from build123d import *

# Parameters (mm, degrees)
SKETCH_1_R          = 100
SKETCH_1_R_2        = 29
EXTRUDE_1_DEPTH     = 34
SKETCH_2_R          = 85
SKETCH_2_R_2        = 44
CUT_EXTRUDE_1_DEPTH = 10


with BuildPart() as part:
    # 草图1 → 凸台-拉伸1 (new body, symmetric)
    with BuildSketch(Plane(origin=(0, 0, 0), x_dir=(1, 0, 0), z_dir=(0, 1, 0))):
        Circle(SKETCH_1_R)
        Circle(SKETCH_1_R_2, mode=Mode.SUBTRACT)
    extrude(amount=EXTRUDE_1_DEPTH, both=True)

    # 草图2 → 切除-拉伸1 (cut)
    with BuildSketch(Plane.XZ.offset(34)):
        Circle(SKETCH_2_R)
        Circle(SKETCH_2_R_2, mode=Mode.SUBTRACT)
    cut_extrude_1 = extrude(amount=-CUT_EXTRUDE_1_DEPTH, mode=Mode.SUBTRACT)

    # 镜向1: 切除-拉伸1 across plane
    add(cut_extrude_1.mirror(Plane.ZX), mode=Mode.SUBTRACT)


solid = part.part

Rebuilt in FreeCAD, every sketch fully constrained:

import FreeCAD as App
import Part
import Sketcher

doc = App.newDocument("Part")
params = doc.addObject("Spreadsheet::Sheet", "Params")
for row, (alias, value) in enumerate([
    ("sketch1_diameter", "200 mm"),
    ("sketch1_diameter2", "58 mm"),
    ("pad1_length", "68 mm"),
    ("sketch2_diameter", "170 mm"),
    ("sketch2_diameter2", "88 mm"),
    ("pocket1_length", "10 mm"),
], start=1):
    params.set(f"A{row}", alias)
    params.set(f"B{row}", "=" + value)
    params.setAlias(f"B{row}", alias)

body = doc.addObject("PartDesign::Body", "Body")

sketch1 = body.newObject("Sketcher::SketchObject", "Sketch")
sketch1.AttachmentSupport = (doc.getObject("XZ_Plane"), [""])
sketch1.MapMode = "FlatFace"
sketch1.addGeometry(Part.Circle(App.Vector(0, 0, 0), App.Vector(0, 0, 1), 100), False)
sketch1.addGeometry(Part.Circle(App.Vector(0, 0, 0), App.Vector(0, 0, 1), 29), False)
sketch1.addConstraint(Sketcher.Constraint("Coincident", 0, 3, -1, 1))
sketch1.addConstraint(Sketcher.Constraint("Coincident", 1, 3, -1, 1))
sketch1.addConstraint(Sketcher.Constraint("Diameter", 0, 200.0))
sketch1.addConstraint(Sketcher.Constraint("Diameter", 1, 58.0))
sketch1.setExpression("Constraints[2]", "Params.sketch1_diameter")
sketch1.setExpression("Constraints[3]", "Params.sketch1_diameter2")
pad1 = body.newObject("PartDesign::Pad", "Pad")
pad1.Profile = sketch1
pad1.setExpression("Length", "Params.pad1_length")
pad1.Midplane = True

sketch2 = body.newObject("Sketcher::SketchObject", "Sketch001")
sketch2.AttachmentSupport = (doc.getObject("XZ_Plane"), [""])
sketch2.MapMode = "FlatFace"
sketch2.AttachmentOffset = App.Placement(App.Vector(0, 0, 34), App.Rotation())
sketch2.addGeometry(Part.Circle(App.Vector(0, 0, 0), App.Vector(0, 0, 1), 85), False)
sketch2.addGeometry(Part.Circle(App.Vector(0, 0, 0), App.Vector(0, 0, 1), 44), False)
sketch2.addConstraint(Sketcher.Constraint("Coincident", 0, 3, -1, 1))
sketch2.addConstraint(Sketcher.Constraint("Coincident", 1, 3, -1, 1))
sketch2.addConstraint(Sketcher.Constraint("Diameter", 0, 170.0))
sketch2.addConstraint(Sketcher.Constraint("Diameter", 1, 88.0))
sketch2.setExpression("Constraints[2]", "Params.sketch2_diameter")
sketch2.setExpression("Constraints[3]", "Params.sketch2_diameter2")
pocket1 = body.newObject("PartDesign::Pocket", "Pocket")
pocket1.Profile = sketch2
pocket1.setExpression("Length", "Params.pocket1_length")
doc.recompute()

mirrored = body.newObject("PartDesign::Mirrored", "Mirrored")
mirrored.Originals = [pocket1]
mirrored.MirrorPlane = (doc.getObject("XZ_Plane"), [""])
body.Tip = mirrored

doc.recompute()
